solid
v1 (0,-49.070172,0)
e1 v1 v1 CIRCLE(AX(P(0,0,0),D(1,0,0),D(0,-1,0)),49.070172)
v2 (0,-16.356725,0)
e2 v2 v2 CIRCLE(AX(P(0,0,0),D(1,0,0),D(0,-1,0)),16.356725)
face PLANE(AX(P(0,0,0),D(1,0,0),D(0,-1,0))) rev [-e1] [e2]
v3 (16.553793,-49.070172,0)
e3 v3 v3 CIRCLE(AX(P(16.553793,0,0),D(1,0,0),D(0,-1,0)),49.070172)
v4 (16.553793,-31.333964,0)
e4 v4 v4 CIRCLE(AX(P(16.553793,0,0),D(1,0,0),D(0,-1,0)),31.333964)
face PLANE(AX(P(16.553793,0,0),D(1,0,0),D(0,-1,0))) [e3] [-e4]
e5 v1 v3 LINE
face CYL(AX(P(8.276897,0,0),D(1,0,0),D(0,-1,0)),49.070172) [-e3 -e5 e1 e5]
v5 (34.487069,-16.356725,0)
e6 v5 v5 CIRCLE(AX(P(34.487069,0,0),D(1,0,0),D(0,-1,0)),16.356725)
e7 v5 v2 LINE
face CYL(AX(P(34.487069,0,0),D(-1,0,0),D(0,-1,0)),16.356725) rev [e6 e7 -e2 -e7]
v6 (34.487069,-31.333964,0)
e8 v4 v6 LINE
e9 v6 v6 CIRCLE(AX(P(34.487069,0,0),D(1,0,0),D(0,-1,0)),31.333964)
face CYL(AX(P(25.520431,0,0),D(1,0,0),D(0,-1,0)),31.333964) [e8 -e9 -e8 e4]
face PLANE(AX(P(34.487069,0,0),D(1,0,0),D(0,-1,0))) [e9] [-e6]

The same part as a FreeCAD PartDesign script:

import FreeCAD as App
import Part
import Sketcher


def add_polygon(sketch, points):
    """Adds a closed chain of lines whose ends are joined by coincident constraints."""
    first, n = sketch.GeometryCount, len(points)
    for a, b in zip(points, points[1:] + points[:1]):
        sketch.addGeometry(Part.LineSegment(App.Vector(*a, 0), App.Vector(*b, 0)), False)
    for i in range(n):
        sketch.addConstraint(Sketcher.Constraint("Coincident", first + i, 2, first + (i + 1) % n, 1))

doc = App.newDocument("Part")
body = doc.addObject("PartDesign::Body", "Body")

# Sketch on XY plane
sketch1 = body.newObject("Sketcher::SketchObject", "Sketch")
sketch1.AttachmentSupport = (doc.getObject("XY_Plane"), [""])
sketch1.MapMode = "FlatFace"
add_polygon(sketch1, [(0, -49.070172), (16.553793, -49.070172), (16.553793, -31.333964), (34.487069, -31.333964), (34.487069, -16.356725), (0, -16.356725)])  # lines 0-5
sketch1.addConstraint(Sketcher.Constraint("Horizontal", 0))
sketch1.addConstraint(Sketcher.Constraint("Vertical", 1))
sketch1.addConstraint(Sketcher.Constraint("Horizontal", 2))
sketch1.addConstraint(Sketcher.Constraint("Vertical", 3))
sketch1.addConstraint(Sketcher.Constraint("Horizontal", 4))
sketch1.addConstraint(Sketcher.Constraint("Vertical", 5))
sketch1.addConstraint(Sketcher.Constraint("PointOnObject", 4, 2, -2))
sketch1.addConstraint(Sketcher.Constraint("DistanceX", 4, 2, 4, 1, 34.487069))
sketch1.addConstraint(Sketcher.Constraint("DistanceY", 3, 1, 3, 2, 14.977239))
sketch1.addConstraint(Sketcher.Constraint("DistanceX", 0, 1, 0, 2, 16.553793))
sketch1.addConstraint(Sketcher.Constraint("DistanceY", 1, 1, 1, 2, 17.736208))
sketch1.addConstraint(Sketcher.Constraint("DistanceY", 0, 2, -1, 1, 49.070172))
revolution = body.newObject("PartDesign::Revolution", "Revolution")
revolution.Profile = sketch1
revolution.ReferenceAxis = (sketch1, ["H_Axis"])
revolution.Angle = 360

doc.recompute()
